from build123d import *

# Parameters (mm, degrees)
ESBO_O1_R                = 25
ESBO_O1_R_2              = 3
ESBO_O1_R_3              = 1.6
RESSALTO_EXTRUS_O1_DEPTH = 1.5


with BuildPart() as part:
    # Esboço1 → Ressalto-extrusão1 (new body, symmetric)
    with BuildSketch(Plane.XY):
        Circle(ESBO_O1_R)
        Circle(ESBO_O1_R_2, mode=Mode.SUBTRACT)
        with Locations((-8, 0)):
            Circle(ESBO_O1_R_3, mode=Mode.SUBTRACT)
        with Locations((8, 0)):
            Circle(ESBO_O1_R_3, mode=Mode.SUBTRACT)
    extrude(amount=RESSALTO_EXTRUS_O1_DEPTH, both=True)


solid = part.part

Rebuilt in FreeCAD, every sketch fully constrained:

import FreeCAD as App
import Part
import Sketcher
from FreeCAD import Vector
Q = App.Units.Quantity

doc = App.newDocument("Part")
body = doc.addObject("PartDesign::Body", "Body")

sketch1 = body.newObject("Sketcher::SketchObject", "Sketch")
sketch1.AttachmentSupport = (doc.getObject("XY_Plane"), [""])
sketch1.MapMode = "FlatFace"
sketch1.addGeometry(Part.Circle(Vector(0, 0, 0), Vector(0, 0, 1), 25), False)
sketch1.addGeometry(Part.Circle(Vector(-8, 0, 0), Vector(0, 0, 1), 1.6), False)
sketch1.addGeometry(Part.Circle(Vector(0, 0, 0), Vector(0, 0, 1), 3), False)
sketch1.addGeometry(Part.Circle(Vector(8, 0, 0), Vector(0, 0, 1), 1.6), False)
sketch1.addConstraint(Sketcher.Constraint("Coincident", 0, 3, -1, 1))
sketch1.addConstraint(Sketcher.Constraint("Coincident", 2, 3, -1, 1))
sketch1.addConstraint(Sketcher.Constraint("Equal", 1, 3))
sketch1.addConstraint(Sketcher.Constraint("Symmetric", 1, 3, 3, 3, -1, 1))
sketch1.addConstraint(Sketcher.Constraint("PointOnObject", 1, 3, -1))
sketch1.addConstraint(Sketcher.Constraint("Diameter", 0, Q("50 mm")))
sketch1.addConstraint(Sketcher.Constraint("Diameter", 2, Q("6 mm")))
sketch1.addConstraint(Sketcher.Constraint("Diameter", 1, Q("3.2 mm")))
sketch1.addConstraint(Sketcher.Constraint("DistanceX", 1, 3, -1, 1, Q("8 mm")))
pad1 = body.newObject("PartDesign::Pad", "Pad")
pad1.Profile = sketch1
pad1.Length = 3
pad1.Midplane = True

doc.recompute()
